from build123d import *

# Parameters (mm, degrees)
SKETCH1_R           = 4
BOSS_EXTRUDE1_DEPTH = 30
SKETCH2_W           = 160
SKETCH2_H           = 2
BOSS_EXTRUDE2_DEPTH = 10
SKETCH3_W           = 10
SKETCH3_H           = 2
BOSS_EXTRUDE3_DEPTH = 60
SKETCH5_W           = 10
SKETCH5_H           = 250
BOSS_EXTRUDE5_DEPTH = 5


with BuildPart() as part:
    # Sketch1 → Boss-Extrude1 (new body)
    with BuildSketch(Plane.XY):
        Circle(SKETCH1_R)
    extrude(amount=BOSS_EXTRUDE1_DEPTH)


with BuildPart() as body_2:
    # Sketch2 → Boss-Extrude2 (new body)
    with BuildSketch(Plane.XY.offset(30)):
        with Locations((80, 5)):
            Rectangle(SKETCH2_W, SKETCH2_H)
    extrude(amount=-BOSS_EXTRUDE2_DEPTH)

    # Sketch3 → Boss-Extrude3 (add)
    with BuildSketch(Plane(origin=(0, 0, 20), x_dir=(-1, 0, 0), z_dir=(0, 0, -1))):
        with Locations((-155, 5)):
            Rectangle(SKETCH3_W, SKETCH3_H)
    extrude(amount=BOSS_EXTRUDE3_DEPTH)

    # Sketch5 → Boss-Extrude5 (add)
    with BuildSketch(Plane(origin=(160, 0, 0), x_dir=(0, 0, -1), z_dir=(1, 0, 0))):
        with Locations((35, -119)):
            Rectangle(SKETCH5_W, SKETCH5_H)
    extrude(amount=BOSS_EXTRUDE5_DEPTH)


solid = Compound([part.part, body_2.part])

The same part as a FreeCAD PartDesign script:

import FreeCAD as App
import Part
import Sketcher

doc = App.newDocument("Part")
params = doc.addObject("Spreadsheet::Sheet", "Params")
for row, (alias, value) in enumerate([
    ("sketch1_diameter", "8 mm"),
    ("pad1_length", "30 mm"),
    ("sketch2_width", "160 mm"),
    ("sketch2_height", "2 mm"),
    ("pad2_length", "10 mm"),
    ("sketch3_width", "10 mm"),
    ("sketch3_height", "2 mm"),
    ("pad3_length", "60 mm"),
    ("sketch4_width", "250 mm"),
    ("sketch4_height", "10 mm"),
    ("pad4_length", "5 mm"),
], start=1):
    params.set(f"A{row}", alias)
    params.set(f"B{row}", "=" + value)
    params.setAlias(f"B{row}", alias)

body = doc.addObject("PartDesign::Body", "Body")

# Sketch on XY plane
sketch1 = body.newObject("Sketcher::SketchObject", "Sketch")
sketch1.AttachmentSupport = (doc.getObject("XY_Plane"), [""])
sketch1.MapMode = "FlatFace"
sketch1.addGeometry(Part.Circle(App.Vector(0, 0, 0), App.Vector(0, 0, 1), 4), False)
sketch1.addConstraint([
    Sketcher.Constraint("Coincident", 0, 3, -1, 1),
    Sketcher.Constraint("Diameter", 0, 8.0),
])
sketch1.setExpression("Constraints[1]", "Params.sketch1_diameter")
pad1 = body.newObject("PartDesign::Pad", "Pad")
pad1.Profile = sketch1
pad1.setExpression("Length", "Params.pad1_length")
body2 = doc.addObject("PartDesign::Body", "Body001")

# Sketch on XY plane
sketch2 = body2.newObject("Sketcher::SketchObject", "Sketch001")
sketch2.AttachmentSupport = (doc.getObject("XY_Plane001"), [""])
sketch2.MapMode = "FlatFace"
sketch2.AttachmentOffset = App.Placement(App.Vector(0, 0, 30), App.Rotation())
sketch2.addGeometry([
    Part.LineSegment(App.Vector(0, 6, 0), App.Vector(0, 4, 0)),
    Part.LineSegment(App.Vector(0, 4, 0), App.Vector(160, 4, 0)),
    Part.LineSegment(App.Vector(160, 4, 0), App.Vector(160, 6, 0)),
    Part.LineSegment(App.Vector(160, 6, 0), App.Vector(0, 6, 0)),
], False)
sketch2.addConstraint([
    Sketcher.Constraint("Coincident", 0, 2, 1, 1),
    Sketcher.Constraint("Coincident", 1, 2, 2, 1),
    Sketcher.Constraint("Coincident", 2, 2, 3, 1),
    Sketcher.Constraint("Coincident", 3, 2, 0, 1),
    Sketcher.Constraint("Vertical", 0),
    Sketcher.Constraint("Horizontal", 1),
    Sketcher.Constraint("Vertical", 2),
    Sketcher.Constraint("Horizontal", 3),
    Sketcher.Constraint("PointOnObject", 0, 2, -2),
    Sketcher.Constraint("DistanceX", 1, 1, 1, 2, 160.0),
    Sketcher.Constraint("DistanceY", 0, 2, 0, 1, 2.0),
    Sketcher.Constraint("DistanceY", -1, 1, 0, 2, 4.0),
])
sketch2.setExpression("Constraints[9]", "Params.sketch2_width")
sketch2.setExpression("Constraints[10]", "Params.sketch2_height")
pad2 = body2.newObject("PartDesign::Pad", "Pad001")
pad2.Profile = sketch2
pad2.setExpression("Length", "Params.pad2_length")
pad2.Reversed = True

# Sketch on XY plane
sketch3 = body2.newObject("Sketcher::SketchObject", "Sketch002")
sketch3.AttachmentSupport = (doc.getObject("XY_Plane001"), [""])
sketch3.MapMode = "FlatFace"
sketch3.AttachmentOffset = App.Placement(App.Vector(0, 0, 20), App.Rotation())
sketch3.addGeometry([
    Part.LineSegment(App.Vector(160, 6, 0), App.Vector(160, 4, 0)),
    Part.LineSegment(App.Vector(160, 4, 0), App.Vector(150, 4, 0)),
    Part.LineSegment(App.Vector(150, 4, 0), App.Vector(150, 6, 0)),
    Part.LineSegment(App.Vector(150, 6, 0), App.Vector(160, 6, 0)),
], False)
sketch3.addConstraint([
    Sketcher.Constraint("Coincident", 0, 2, 1, 1),
    Sketcher.Constraint("Coincident", 1, 2, 2, 1),
    Sketcher.Constraint("Coincident", 2, 2, 3, 1),
    Sketcher.Constraint("Coincident", 3, 2, 0, 1),
    Sketcher.Constraint("Vertical", 0),
    Sketcher.Constraint("Horizontal", 1),
    Sketcher.Constraint("Vertical", 2),
    Sketcher.Constraint("Horizontal", 3),
    Sketcher.Constraint("DistanceX", 1, 2, 1, 1, 10.0),
    Sketcher.Constraint("DistanceY", 0, 2, 0, 1, 2.0),
    Sketcher.Constraint("DistanceX", -1, 1, 0, 2, 160.0),
    Sketcher.Constraint("DistanceY", -1, 1, 0, 2, 4.0),
])
sketch3.setExpression("Constraints[8]", "Params.sketch3_width")
sketch3.setExpression("Constraints[9]", "Params.sketch3_height")
pad3 = body2.newObject("PartDesign::Pad", "Pad002")
pad3.Profile = sketch3
pad3.setExpression("Length", "Params.pad3_length")
pad3.Reversed = True

# Sketch on YZ plane
sketch4 = body2.newObject("Sketcher::SketchObject", "Sketch003")
sketch4.AttachmentSupport = (doc.getObject("YZ_Plane001"), [""])
sketch4.MapMode = "FlatFace"
sketch4.AttachmentOffset = App.Placement(App.Vector(0, 0, 160), App.Rotation())
sketch4.addGeometry([
    Part.LineSegment(App.Vector(6, -30, 0), App.Vector(-244, -30, 0)),
    Part.LineSegment(App.Vector(-244, -30, 0), App.Vector(-244, -40, 0)),
    Part.LineSegment(App.Vector(-244, -40, 0), App.Vector(6, -40, 0)),
    Part.LineSegment(App.Vector(6, -40, 0), App.Vector(6, -30, 0)),
], False)
sketch4.addConstraint([
    Sketcher.Constraint("Coincident", 0, 2, 1, 1),
    Sketcher.Constraint("Coincident", 1, 2, 2, 1),
    Sketcher.Constraint("Coincident", 2, 2, 3, 1),
    Sketcher.Constraint("Coincident", 3, 2, 0, 1),
    Sketcher.Constraint("Horizontal", 0),
    Sketcher.Constraint("Vertical", 1),
    Sketcher.Constraint("Horizontal", 2),
    Sketcher.Constraint("Vertical", 3),
    Sketcher.Constraint("DistanceX", 0, 2, 0, 1, 250.0),
    Sketcher.Constraint("DistanceY", 1, 2, 1, 1, 10.0),
    Sketcher.Constraint("DistanceX", 0, 2, -1, 1, 244.0),
    Sketcher.Constraint("DistanceY", 0, 2, -1, 1, 30.0),
])
sketch4.setExpression("Constraints[8]", "Params.sketch4_width")
sketch4.setExpression("Constraints[9]", "Params.sketch4_height")
pad4 = body2.newObject("PartDesign::Pad", "Pad003")
pad4.Profile = sketch4
pad4.setExpression("Length", "Params.pad4_length")

doc.recompute()
